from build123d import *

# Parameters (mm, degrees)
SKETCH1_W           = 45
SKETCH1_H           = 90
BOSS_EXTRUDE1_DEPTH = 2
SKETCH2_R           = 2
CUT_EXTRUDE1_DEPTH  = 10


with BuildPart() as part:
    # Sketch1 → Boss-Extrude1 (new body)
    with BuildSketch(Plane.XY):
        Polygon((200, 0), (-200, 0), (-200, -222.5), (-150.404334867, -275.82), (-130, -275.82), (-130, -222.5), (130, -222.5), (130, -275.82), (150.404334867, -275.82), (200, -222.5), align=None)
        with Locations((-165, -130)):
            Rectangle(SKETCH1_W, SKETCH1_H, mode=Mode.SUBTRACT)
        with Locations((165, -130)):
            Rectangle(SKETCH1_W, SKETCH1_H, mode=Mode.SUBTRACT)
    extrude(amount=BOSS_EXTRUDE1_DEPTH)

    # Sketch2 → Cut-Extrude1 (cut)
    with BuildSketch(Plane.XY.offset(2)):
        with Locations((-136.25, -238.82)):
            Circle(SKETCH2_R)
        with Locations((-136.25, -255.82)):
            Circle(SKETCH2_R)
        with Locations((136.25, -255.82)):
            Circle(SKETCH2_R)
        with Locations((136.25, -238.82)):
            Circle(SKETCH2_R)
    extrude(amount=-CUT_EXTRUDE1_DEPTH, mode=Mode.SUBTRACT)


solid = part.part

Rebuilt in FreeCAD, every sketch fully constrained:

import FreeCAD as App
import Part
import Sketcher

doc = App.newDocument("Part")
params = doc.addObject("Spreadsheet::Sheet", "Params")
for row, (alias, value) in enumerate([
    ("sketch1_width", "400 mm"),
    ("sketch1_width2", "260 mm"),
    ("sketch1_width3", "45 mm"),
    ("sketch1_height", "90 mm"),
    ("sketch1_height2", "222.5 mm"),
    ("pad1_length", "2 mm"),
    ("sketch2_diameter", "4 mm"),
    ("pocket1_length", "10 mm"),
], start=1):
    params.set(f"A{row}", alias)
    params.set(f"B{row}", "=" + value)
    params.setAlias(f"B{row}", alias)

body = doc.addObject("PartDesign::Body", "Body")

# Sketch on XY plane
sketch1 = body.newObject("Sketcher::SketchObject", "Sketch")
sketch1.AttachmentSupport = (doc.getObject("XY_Plane"), [""])
sketch1.MapMode = "FlatFace"
sketch1.addGeometry([
    Part.LineSegment(App.Vector(200, 0, 0), App.Vector(-200, 0, 0)),  # 0
    Part.LineSegment(App.Vector(-200, 0, 0), App.Vector(-200, -222, 0)),  # 1
    Part.LineSegment(App.Vector(-200, -222, 0), App.Vector(-150, -276, 0)),  # 2
    Part.LineSegment(App.Vector(-150, -276, 0), App.Vector(-130, -276, 0)),  # 3
    Part.LineSegment(App.Vector(-130, -276, 0), App.Vector(-130, -222, 0)),  # 4
    Part.LineSegment(App.Vector(-130, -222, 0), App.Vector(130, -222, 0)),  # 5
    Part.LineSegment(App.Vector(130, -222, 0), App.Vector(130, -276, 0)),  # 6
    Part.LineSegment(App.Vector(130, -276, 0), App.Vector(150, -276, 0)),  # 7
    Part.LineSegment(App.Vector(150, -276, 0), App.Vector(200, -222, 0)),  # 8
    Part.LineSegment(App.Vector(200, -222, 0), App.Vector(200, 0, 0)),  # 9
    Part.LineSegment(App.Vector(-142, -175, 0), App.Vector(-188, -175, 0)),  # 10
    Part.LineSegment(App.Vector(-188, -175, 0), App.Vector(-188, -85, 0)),  # 11
    Part.LineSegment(App.Vector(-188, -85, 0), App.Vector(-142, -85, 0)),  # 12
    Part.LineSegment(App.Vector(-142, -85, 0), App.Vector(-142, -175, 0)),  # 13
    Part.LineSegment(App.Vector(188, -175, 0), App.Vector(142, -175, 0)),  # 14
    Part.LineSegment(App.Vector(142, -175, 0), App.Vector(142, -85, 0)),  # 15
    Part.LineSegment(App.Vector(142, -85, 0), App.Vector(188, -85, 0)),  # 16
    Part.LineSegment(App.Vector(188, -85, 0), App.Vector(188, -175, 0)),  # 17
], False)
sketch1.addConstraint([
    Sketcher.Constraint("Coincident", 0, 2, 1, 1),
    Sketcher.Constraint("Coincident", 1, 2, 2, 1),
    Sketcher.Constraint("Coincident", 2, 2, 3, 1),
    Sketcher.Constraint("Coincident", 3, 2, 4, 1),
    Sketcher.Constraint("Coincident", 4, 2, 5, 1),
    Sketcher.Constraint("Coincident", 5, 2, 6, 1),
    Sketcher.Constraint("Coincident", 6, 2, 7, 1),
    Sketcher.Constraint("Coincident", 7, 2, 8, 1),
    Sketcher.Constraint("Coincident", 8, 2, 9, 1),
    Sketcher.Constraint("Coincident", 9, 2, 0, 1),
    Sketcher.Constraint("Coincident", 10, 2, 11, 1),
    Sketcher.Constraint("Coincident", 11, 2, 12, 1),
    Sketcher.Constraint("Coincident", 12, 2, 13, 1),
    Sketcher.Constraint("Coincident", 13, 2, 10, 1),
    Sketcher.Constraint("Coincident", 14, 2, 15, 1),
    Sketcher.Constraint("Coincident", 15, 2, 16, 1),
    Sketcher.Constraint("Coincident", 16, 2, 17, 1),
    Sketcher.Constraint("Coincident", 17, 2, 14, 1),
    Sketcher.Constraint("Horizontal", 0),
    Sketcher.Constraint("Vertical", 1),
    Sketcher.Constraint("Horizontal", 3),
    Sketcher.Constraint("Vertical", 4),
    Sketcher.Constraint("Horizontal", 5),
    Sketcher.Constraint("Vertical", 6),
    Sketcher.Constraint("Horizontal", 7),
    Sketcher.Constraint("Vertical", 9),
    Sketcher.Constraint("Horizontal", 10),
    Sketcher.Constraint("Vertical", 11),
    Sketcher.Constraint("Horizontal", 12),
    Sketcher.Constraint("Vertical", 13),
    Sketcher.Constraint("Horizontal", 14),
    Sketcher.Constraint("Vertical", 15),
    Sketcher.Constraint("Horizontal", 16),
    Sketcher.Constraint("Vertical", 17),
    Sketcher.Constraint("Symmetric", 0, 2, 9, 2, -1, 1),
    Sketcher.Constraint("Symmetric", 3, 2, 6, 2, -2),
    Sketcher.Constraint("Symmetric", 13, 2, 14, 2, -2),
    Sketcher.Constraint("Symmetric", 11, 2, 16, 2, -2),
    Sketcher.Constraint("Horizontal", 1, 2, 4, 2),
    Sketcher.Constraint("Horizontal", 5, 2, 8, 2),
    Sketcher.Constraint("Equal", 3, 7),
    Sketcher.Constraint("DistanceX", 0, 2, 0, 1, 400.0),
    Sketcher.Constraint("DistanceX", 5, 1, 5, 2, 260.0),
    Sketcher.Constraint("DistanceX", 10, 2, 10, 1, 45.0),
    Sketcher.Constraint("DistanceY", 11, 1, 11, 2, 90.0),
    Sketcher.Constraint("DistanceY", 1, 2, 1, 1, 222.5),
    Sketcher.Constraint("DistanceY", 10, 2, -1, 1, 175.0),
    Sketcher.Constraint("DistanceY", 4, 1, 4, 2, 53.32),
    Sketcher.Constraint("DistanceX", 10, 2, -1, 1, 187.5),
    Sketcher.Constraint("Distance", 2, 72.82),
])
sketch1.setExpression("Constraints[41]", "Params.sketch1_width")
sketch1.setExpression("Constraints[42]", "Params.sketch1_width2")
sketch1.setExpression("Constraints[43]", "Params.sketch1_width3")
sketch1.setExpression("Constraints[44]", "Params.sketch1_height")
sketch1.setExpression("Constraints[45]", "Params.sketch1_height2")
pad1 = body.newObject("PartDesign::Pad", "Pad")
pad1.Profile = sketch1
pad1.setExpression("Length", "Params.pad1_length")

# Sketch on XY plane
sketch2 = body.newObject("Sketcher::SketchObject", "Sketch001")
sketch2.AttachmentSupport = (doc.getObject("XY_Plane"), [""])
sketch2.MapMode = "FlatFace"
sketch2.AttachmentOffset = App.Placement(App.Vector(0, 0, 2), App.Rotation())
sketch2.addGeometry([
    Part.Circle(App.Vector(-136.2, -238.8, 0), App.Vector(0, 0, 1), 2),
    Part.Circle(App.Vector(-136.2, -255.8, 0), App.Vector(0, 0, 1), 2),
    Part.Circle(App.Vector(136.2, -255.8, 0), App.Vector(0, 0, 1), 2),
    Part.Circle(App.Vector(136.2, -238.8, 0), App.Vector(0, 0, 1), 2),
], False)
sketch2.addConstraint([
    Sketcher.Constraint("Equal", 0, 1),
    Sketcher.Constraint("Equal", 1, 2),
    Sketcher.Constraint("Equal", 2, 3),
    Sketcher.Constraint("Symmetric", 1, 3, 2, 3, -2),
    Sketcher.Constraint("Symmetric", 0, 3, 3, 3, -2),
    Sketcher.Constraint("Vertical", 0, 3, 1, 3),
    Sketcher.Constraint("Diameter", 0, 4.0),
    Sketcher.Constraint("DistanceY", 1, 3, 0, 3, 17.0),
    Sketcher.Constraint("DistanceX", 1, 3, 2, 3, 272.5),
    Sketcher.Constraint("DistanceY", 0, 3, -1, 1, 238.82),
])
sketch2.setExpression("Constraints[6]", "Params.sketch2_diameter")
pocket1 = body.newObject("PartDesign::Pocket", "Pocket")
pocket1.Profile = sketch2
pocket1.setExpression("Length", "Params.pocket1_length")

doc.recompute()
